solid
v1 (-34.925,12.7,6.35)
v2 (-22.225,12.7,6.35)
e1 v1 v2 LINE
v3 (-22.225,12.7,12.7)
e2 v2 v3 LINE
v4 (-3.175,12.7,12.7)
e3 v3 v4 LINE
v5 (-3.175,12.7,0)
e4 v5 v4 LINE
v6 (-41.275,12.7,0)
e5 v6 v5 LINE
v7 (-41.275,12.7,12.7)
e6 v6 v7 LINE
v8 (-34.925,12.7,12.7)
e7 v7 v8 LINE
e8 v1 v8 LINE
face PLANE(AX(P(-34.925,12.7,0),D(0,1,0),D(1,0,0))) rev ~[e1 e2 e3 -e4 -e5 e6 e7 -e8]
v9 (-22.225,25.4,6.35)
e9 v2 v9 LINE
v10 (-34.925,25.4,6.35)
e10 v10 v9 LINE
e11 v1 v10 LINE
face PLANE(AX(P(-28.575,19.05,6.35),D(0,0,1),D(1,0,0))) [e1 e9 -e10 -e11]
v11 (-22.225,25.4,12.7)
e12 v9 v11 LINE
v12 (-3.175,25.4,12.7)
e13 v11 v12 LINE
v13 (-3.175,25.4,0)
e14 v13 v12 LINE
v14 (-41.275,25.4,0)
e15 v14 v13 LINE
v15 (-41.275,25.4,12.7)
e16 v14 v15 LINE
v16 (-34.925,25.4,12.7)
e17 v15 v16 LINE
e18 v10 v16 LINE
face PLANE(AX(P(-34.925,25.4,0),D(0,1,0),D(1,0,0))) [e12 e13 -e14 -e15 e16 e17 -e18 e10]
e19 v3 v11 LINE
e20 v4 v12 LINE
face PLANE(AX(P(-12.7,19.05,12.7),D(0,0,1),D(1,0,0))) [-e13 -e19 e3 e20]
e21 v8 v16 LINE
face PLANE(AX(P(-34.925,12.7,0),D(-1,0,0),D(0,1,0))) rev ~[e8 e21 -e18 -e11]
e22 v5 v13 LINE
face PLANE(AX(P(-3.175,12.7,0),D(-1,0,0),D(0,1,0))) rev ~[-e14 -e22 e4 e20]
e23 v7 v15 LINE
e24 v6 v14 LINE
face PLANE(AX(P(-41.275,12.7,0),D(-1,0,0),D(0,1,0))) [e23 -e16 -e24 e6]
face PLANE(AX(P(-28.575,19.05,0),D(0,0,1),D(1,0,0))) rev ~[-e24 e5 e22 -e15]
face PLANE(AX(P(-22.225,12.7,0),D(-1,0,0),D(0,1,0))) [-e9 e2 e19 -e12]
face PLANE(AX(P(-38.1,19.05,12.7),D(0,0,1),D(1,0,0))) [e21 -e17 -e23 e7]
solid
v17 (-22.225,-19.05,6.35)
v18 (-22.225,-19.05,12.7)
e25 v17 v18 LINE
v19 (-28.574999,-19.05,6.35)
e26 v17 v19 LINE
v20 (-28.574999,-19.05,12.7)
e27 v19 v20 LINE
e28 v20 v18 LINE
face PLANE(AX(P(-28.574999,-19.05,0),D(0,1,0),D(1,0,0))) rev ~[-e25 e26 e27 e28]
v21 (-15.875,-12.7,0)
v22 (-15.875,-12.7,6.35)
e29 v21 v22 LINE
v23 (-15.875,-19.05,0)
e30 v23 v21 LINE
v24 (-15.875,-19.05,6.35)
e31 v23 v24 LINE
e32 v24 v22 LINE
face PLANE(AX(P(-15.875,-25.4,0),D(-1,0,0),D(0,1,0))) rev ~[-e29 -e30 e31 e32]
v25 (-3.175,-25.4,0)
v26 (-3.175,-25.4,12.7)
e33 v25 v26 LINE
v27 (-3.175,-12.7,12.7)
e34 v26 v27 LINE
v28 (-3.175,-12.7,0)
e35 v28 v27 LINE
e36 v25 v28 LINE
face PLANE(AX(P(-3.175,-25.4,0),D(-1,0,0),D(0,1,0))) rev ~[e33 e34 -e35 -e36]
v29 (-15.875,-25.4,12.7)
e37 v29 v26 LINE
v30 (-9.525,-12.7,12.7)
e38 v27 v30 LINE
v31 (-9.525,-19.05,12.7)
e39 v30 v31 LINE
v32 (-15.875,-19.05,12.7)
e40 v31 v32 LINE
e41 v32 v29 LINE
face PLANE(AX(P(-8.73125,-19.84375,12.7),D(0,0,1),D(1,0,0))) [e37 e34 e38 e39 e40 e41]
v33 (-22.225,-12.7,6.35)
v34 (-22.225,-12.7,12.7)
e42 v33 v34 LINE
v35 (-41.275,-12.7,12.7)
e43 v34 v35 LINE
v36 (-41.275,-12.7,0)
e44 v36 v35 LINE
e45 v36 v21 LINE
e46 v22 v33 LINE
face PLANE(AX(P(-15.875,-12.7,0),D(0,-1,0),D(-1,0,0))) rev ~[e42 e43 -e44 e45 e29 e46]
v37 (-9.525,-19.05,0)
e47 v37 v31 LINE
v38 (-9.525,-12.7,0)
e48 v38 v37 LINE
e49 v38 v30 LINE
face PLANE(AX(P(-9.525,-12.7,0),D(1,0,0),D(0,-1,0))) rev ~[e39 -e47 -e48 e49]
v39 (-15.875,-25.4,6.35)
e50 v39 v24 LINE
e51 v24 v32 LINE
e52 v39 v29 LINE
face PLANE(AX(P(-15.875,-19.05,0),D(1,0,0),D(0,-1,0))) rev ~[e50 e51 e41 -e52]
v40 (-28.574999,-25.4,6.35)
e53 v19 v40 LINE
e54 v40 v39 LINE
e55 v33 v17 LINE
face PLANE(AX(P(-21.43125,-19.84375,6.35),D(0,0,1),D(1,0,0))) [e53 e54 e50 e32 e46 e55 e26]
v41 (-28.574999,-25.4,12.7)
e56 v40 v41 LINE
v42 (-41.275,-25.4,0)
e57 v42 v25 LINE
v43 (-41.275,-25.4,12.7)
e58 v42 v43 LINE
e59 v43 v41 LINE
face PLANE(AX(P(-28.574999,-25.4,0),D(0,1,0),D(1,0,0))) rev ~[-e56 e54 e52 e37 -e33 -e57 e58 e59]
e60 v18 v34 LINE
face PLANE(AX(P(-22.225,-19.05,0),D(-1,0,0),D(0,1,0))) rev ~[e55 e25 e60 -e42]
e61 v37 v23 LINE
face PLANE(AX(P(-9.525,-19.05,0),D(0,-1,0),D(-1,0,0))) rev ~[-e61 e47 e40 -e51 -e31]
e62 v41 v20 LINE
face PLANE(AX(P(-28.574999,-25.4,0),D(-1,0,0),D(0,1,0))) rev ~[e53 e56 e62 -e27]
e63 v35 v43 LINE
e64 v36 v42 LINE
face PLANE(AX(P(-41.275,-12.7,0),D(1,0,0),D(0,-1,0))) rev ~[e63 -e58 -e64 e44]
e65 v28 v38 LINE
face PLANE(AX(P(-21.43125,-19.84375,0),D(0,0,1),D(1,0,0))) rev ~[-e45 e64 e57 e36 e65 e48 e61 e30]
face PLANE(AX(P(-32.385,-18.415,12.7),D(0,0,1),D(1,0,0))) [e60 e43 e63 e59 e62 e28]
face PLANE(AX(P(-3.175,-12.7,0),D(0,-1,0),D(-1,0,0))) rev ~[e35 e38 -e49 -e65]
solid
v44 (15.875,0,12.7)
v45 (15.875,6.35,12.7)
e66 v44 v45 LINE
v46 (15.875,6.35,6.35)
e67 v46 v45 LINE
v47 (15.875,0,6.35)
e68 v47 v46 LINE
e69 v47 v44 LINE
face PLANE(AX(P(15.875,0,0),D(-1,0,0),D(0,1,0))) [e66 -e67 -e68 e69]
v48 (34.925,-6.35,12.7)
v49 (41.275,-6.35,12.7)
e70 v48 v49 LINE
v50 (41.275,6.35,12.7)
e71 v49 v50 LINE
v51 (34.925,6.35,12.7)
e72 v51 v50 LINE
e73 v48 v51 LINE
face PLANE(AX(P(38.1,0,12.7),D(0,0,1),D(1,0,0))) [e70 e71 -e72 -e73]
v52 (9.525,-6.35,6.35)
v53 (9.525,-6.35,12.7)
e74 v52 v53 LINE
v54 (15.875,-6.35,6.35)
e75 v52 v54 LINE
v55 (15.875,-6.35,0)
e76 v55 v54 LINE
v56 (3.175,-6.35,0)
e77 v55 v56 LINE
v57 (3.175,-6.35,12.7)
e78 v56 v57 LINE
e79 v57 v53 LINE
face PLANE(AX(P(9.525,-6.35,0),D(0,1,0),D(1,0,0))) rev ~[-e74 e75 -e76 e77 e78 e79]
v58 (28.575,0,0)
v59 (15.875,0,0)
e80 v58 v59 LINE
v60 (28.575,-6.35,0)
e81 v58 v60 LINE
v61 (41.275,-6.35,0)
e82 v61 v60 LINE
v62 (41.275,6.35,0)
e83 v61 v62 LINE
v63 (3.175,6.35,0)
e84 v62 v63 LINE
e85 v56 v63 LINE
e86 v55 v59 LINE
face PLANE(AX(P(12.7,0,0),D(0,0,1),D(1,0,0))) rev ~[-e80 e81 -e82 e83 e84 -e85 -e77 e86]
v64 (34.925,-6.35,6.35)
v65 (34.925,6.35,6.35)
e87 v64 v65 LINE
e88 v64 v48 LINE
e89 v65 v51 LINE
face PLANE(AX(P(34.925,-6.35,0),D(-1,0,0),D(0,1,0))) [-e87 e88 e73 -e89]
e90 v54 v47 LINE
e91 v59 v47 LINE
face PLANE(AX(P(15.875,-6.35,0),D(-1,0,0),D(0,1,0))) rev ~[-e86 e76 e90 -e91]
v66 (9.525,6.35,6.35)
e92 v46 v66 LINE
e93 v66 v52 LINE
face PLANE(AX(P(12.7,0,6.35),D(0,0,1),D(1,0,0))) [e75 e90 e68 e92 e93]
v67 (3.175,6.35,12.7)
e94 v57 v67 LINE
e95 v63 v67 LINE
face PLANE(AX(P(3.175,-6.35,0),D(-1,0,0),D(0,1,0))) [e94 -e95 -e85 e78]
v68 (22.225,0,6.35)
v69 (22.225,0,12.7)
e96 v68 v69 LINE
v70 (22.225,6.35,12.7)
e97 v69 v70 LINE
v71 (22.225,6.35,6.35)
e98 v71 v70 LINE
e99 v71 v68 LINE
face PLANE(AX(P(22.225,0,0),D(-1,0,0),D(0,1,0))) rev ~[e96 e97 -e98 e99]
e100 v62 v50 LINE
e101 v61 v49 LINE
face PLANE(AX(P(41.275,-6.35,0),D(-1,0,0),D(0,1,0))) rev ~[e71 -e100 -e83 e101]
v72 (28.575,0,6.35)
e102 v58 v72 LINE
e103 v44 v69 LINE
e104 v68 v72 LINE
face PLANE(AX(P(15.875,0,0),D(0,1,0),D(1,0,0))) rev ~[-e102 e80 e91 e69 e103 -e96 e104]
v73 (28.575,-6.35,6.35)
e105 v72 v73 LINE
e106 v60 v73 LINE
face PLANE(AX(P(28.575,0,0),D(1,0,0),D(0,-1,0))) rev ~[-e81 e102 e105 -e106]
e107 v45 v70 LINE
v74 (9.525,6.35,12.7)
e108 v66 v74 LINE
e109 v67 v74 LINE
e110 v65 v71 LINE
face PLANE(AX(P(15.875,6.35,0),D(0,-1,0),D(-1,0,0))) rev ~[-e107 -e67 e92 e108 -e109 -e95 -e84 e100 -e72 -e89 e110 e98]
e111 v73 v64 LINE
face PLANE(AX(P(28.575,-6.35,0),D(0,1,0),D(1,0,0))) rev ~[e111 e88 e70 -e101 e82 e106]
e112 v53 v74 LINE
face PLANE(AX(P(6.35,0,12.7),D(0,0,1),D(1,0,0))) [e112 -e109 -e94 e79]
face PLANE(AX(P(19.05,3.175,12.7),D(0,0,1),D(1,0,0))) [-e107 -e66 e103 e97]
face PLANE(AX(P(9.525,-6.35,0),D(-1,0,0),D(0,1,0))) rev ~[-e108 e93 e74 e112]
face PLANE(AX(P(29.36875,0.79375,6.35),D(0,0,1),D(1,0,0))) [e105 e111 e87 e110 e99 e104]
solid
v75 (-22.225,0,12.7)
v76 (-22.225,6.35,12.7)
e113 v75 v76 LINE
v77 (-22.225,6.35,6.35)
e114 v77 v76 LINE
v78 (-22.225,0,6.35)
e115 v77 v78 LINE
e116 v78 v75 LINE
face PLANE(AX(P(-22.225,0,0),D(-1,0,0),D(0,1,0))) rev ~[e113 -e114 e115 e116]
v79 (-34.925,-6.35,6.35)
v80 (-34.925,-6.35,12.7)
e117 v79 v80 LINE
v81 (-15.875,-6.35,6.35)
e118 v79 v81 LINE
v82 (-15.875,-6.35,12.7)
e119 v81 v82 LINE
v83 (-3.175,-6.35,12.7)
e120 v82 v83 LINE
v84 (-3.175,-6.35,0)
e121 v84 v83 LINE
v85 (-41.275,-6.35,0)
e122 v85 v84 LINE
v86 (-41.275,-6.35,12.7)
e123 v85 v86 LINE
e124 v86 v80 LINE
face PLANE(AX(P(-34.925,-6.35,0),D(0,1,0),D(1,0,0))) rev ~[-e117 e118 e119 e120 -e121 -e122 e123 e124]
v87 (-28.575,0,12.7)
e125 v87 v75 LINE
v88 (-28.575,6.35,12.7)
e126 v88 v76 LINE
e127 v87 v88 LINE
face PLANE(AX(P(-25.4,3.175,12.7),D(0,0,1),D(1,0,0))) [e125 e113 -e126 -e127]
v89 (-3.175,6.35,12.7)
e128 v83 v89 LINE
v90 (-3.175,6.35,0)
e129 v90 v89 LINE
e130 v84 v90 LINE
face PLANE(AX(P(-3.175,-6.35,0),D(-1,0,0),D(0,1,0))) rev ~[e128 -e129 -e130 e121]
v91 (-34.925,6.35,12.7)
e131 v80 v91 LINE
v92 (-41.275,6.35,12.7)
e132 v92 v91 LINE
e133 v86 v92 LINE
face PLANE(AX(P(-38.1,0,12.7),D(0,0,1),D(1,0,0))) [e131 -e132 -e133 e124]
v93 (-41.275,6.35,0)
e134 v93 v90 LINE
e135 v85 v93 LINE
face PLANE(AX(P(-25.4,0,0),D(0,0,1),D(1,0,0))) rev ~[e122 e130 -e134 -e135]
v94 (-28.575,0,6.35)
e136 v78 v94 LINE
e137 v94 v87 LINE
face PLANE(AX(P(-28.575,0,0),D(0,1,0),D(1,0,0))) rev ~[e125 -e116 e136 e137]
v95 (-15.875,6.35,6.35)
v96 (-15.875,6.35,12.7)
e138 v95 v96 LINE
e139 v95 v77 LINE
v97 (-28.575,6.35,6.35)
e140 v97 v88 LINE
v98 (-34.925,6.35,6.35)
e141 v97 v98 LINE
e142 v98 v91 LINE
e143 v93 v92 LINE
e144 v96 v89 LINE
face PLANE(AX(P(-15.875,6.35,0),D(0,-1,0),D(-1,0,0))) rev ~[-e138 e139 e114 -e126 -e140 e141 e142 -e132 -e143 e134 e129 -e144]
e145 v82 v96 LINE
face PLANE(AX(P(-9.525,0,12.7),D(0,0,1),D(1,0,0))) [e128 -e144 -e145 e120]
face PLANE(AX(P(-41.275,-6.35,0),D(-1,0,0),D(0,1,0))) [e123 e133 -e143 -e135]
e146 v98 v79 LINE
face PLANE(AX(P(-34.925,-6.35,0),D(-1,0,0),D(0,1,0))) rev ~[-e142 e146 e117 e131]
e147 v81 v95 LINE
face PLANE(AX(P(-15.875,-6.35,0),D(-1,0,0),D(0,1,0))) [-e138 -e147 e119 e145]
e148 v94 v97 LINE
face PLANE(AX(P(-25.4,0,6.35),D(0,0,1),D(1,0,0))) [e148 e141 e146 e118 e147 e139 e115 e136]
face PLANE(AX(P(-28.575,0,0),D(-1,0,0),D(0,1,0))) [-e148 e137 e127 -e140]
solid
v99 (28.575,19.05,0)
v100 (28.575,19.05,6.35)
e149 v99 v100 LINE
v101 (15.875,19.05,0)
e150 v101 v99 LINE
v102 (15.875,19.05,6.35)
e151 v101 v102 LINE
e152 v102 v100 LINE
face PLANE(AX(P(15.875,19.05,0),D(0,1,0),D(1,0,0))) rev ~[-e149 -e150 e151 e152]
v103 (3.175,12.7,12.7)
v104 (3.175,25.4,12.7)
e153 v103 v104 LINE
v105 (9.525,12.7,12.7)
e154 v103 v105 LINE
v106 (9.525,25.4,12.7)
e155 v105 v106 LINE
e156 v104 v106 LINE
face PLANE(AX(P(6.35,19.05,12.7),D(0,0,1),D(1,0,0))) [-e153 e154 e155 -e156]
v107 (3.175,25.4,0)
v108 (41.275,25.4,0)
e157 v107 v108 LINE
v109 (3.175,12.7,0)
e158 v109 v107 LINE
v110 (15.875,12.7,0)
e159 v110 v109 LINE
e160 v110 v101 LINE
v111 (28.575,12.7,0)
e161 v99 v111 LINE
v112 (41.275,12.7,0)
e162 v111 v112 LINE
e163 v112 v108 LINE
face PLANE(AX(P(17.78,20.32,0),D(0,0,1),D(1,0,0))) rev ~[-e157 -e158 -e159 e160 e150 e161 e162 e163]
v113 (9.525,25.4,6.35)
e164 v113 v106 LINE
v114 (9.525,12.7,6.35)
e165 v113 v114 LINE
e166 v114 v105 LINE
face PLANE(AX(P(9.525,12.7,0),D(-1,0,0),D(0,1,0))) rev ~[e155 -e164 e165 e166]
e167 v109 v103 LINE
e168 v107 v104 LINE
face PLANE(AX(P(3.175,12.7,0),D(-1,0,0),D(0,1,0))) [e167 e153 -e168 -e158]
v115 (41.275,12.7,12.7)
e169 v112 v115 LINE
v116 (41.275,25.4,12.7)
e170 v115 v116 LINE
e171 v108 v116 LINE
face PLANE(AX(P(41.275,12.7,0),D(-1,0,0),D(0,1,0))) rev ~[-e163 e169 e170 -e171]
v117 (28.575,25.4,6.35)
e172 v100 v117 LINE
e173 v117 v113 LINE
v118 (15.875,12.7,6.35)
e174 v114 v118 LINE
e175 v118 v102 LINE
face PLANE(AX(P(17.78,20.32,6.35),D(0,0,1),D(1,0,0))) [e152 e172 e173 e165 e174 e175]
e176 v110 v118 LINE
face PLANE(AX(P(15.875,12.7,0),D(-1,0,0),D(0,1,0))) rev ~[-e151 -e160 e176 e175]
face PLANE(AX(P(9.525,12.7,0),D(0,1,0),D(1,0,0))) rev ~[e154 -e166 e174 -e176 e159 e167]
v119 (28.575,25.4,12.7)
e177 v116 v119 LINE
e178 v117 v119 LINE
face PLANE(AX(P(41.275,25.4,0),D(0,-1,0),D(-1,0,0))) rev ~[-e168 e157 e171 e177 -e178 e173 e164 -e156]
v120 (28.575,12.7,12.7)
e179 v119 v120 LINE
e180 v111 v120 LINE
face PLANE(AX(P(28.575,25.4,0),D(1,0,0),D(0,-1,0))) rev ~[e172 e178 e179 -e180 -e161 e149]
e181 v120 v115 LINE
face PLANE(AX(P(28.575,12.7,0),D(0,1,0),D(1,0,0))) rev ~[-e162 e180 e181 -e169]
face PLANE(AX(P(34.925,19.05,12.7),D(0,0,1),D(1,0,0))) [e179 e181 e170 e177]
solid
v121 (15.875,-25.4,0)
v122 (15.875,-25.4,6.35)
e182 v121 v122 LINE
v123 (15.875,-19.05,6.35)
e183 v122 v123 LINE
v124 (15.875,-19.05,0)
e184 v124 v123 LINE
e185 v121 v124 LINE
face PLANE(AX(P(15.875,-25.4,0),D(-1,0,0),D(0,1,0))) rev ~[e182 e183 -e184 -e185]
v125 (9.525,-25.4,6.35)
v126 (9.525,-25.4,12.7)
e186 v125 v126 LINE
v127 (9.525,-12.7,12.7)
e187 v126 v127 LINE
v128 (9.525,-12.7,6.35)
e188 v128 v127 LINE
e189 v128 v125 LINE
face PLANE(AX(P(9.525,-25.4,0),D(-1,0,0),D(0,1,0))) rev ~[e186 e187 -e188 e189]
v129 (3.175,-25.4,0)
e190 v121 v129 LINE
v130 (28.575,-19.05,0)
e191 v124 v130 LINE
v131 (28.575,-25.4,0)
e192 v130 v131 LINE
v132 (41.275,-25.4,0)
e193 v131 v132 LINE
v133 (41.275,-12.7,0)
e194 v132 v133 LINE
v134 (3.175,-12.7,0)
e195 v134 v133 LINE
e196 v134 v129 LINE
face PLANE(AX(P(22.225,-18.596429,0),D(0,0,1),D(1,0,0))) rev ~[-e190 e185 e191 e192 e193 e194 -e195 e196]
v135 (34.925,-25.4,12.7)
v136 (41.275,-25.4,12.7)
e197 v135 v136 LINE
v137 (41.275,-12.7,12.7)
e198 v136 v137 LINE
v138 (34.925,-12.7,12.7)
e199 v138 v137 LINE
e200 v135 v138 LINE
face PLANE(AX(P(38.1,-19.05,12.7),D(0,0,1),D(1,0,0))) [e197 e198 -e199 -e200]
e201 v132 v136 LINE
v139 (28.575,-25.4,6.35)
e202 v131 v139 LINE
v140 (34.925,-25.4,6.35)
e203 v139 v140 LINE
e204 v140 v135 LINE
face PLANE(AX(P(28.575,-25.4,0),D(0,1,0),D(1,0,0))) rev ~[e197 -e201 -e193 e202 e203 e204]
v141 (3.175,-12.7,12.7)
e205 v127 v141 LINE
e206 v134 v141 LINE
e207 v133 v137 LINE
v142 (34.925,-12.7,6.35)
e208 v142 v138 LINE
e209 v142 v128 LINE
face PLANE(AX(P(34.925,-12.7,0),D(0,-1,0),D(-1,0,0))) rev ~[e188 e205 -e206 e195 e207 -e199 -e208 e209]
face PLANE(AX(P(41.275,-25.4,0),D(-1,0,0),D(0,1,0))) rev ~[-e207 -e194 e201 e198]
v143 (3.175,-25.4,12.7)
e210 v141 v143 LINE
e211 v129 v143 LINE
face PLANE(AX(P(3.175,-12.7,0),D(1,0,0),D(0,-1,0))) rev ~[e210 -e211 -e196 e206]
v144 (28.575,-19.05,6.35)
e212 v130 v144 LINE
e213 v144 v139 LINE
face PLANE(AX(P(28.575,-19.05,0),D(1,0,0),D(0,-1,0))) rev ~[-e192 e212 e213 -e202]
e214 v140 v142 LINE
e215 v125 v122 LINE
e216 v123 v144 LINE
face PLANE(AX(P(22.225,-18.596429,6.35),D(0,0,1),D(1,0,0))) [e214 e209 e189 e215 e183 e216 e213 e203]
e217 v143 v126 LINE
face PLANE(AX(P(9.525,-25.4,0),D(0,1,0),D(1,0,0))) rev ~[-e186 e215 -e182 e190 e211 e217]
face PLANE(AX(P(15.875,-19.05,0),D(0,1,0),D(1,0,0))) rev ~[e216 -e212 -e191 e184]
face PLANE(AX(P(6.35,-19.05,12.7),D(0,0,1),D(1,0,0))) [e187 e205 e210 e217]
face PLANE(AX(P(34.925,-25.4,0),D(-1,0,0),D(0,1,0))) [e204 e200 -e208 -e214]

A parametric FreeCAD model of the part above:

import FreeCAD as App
import Part
import Sketcher
from FreeCAD import Vector
Q = App.Units.Quantity

doc = App.newDocument("Part")
body = doc.addObject("PartDesign::Body", "Body")

# Sketch on XY plane
sketch1 = body.newObject("Sketcher::SketchObject", "Sketch")
sketch1.AttachmentSupport = (doc.getObject("XY_Plane"), [""])
sketch1.MapMode = "FlatFace"
sketch1.addGeometry(Part.LineSegment(Vector(-41, 25, 0), Vector(-41, 13, 0)), False)
sketch1.addGeometry(Part.LineSegment(Vector(-41, 13, 0), Vector(-35, 13, 0)), False)
sketch1.addGeometry(Part.LineSegment(Vector(-35, 13, 0), Vector(-35, 25, 0)), False)
sketch1.addGeometry(Part.LineSegment(Vector(-35, 25, 0), Vector(-41, 25, 0)), False)
sketch1.addConstraint(Sketcher.Constraint("Coincident", 0, 2, 1, 1))
sketch1.addConstraint(Sketcher.Constraint("Coincident", 1, 2, 2, 1))
sketch1.addConstraint(Sketcher.Constraint("Coincident", 2, 2, 3, 1))
sketch1.addConstraint(Sketcher.Constraint("Coincident", 3, 2, 0, 1))
sketch1.addConstraint(Sketcher.Constraint("Vertical", 0))
sketch1.addConstraint(Sketcher.Constraint("Horizontal", 1))
sketch1.addConstraint(Sketcher.Constraint("Vertical", 2))
sketch1.addConstraint(Sketcher.Constraint("Horizontal", 3))
sketch1.addConstraint(Sketcher.Constraint("DistanceY", 0, 2, 0, 1, Q("0.5 in")))
sketch1.addConstraint(Sketcher.Constraint("DistanceY", -1, 1, 2, 2, Q("1 in")))
sketch1.addConstraint(Sketcher.Constraint("DistanceX", 1, 1, 1, 2, Q("0.25 in")))
sketch1.addConstraint(Sketcher.Constraint("DistanceX", 0, 2, -1, 1, Q("1.625 in")))
pad1 = body.newObject("PartDesign::Pad", "Pad")
pad1.Profile = sketch1
pad1.Length = Q("0.5 in")
body2 = doc.addObject("PartDesign::Body", "Body001")

# Sketch on XY plane
sketch2 = body2.newObject("Sketcher::SketchObject", "Sketch001")
sketch2.AttachmentSupport = (doc.getObject("XY_Plane001"), [""])
sketch2.MapMode = "FlatFace"
sketch2.addGeometry(Part.LineSegment(Vector(-22, 25, 0), Vector(-22, 13, 0)), False)
sketch2.addGeometry(Part.LineSegment(Vector(-22, 13, 0), Vector(-3, 13, 0)), False)
sketch2.addGeometry(Part.LineSegment(Vector(-3, 13, 0), Vector(-3, 25, 0)), False)
sketch2.addGeometry(Part.LineSegment(Vector(-3, 25, 0), Vector(-22, 25, 0)), False)
sketch2.addConstraint(Sketcher.Constraint("Coincident", 0, 2, 1, 1))
sketch2.addConstraint(Sketcher.Constraint("Coincident", 1, 2, 2, 1))
sketch2.addConstraint(Sketcher.Constraint("Coincident", 2, 2, 3, 1))
sketch2.addConstraint(Sketcher.Constraint("Coincident", 3, 2, 0, 1))
sketch2.addConstraint(Sketcher.Constraint("Vertical", 0))
sketch2.addConstraint(Sketcher.Constraint("Horizontal", 1))
sketch2.addConstraint(Sketcher.Constraint("Vertical", 2))
sketch2.addConstraint(Sketcher.Constraint("Horizontal", 3))
sketch2.addConstraint(Sketcher.Constraint("DistanceY", 0, 2, 0, 1, Q("0.5 in")))
sketch2.addConstraint(Sketcher.Constraint("DistanceY", -1, 1, 2, 2, Q("1 in")))
sketch2.addConstraint(Sketcher.Constraint("DistanceX", 1, 1, 1, 2, Q("0.75 in")))
sketch2.addConstraint(Sketcher.Constraint("DistanceX", 0, 2, -1, 1, Q("0.875 in")))
pad2 = body2.newObject("PartDesign::Pad", "Pad001")
pad2.Profile = sketch2
pad2.Length = Q("0.5 in")
body3 = doc.addObject("PartDesign::Body", "Body002")

# Sketch on XY plane
sketch3 = body3.newObject("Sketcher::SketchObject", "Sketch002")
sketch3.AttachmentSupport = (doc.getObject("XY_Plane002"), [""])
sketch3.MapMode = "FlatFace"
sketch3.addGeometry(Part.LineSegment(Vector(-41, 6, 0), Vector(-41, -6, 0)), False)
sketch3.addGeometry(Part.LineSegment(Vector(-41, -6, 0), Vector(-35, -6, 0)), False)
sketch3.addGeometry(Part.LineSegment(Vector(-35, -6, 0), Vector(-35, 6, 0)), False)
sketch3.addGeometry(Part.LineSegment(Vector(-35, 6, 0), Vector(-41, 6, 0)), False)
sketch3.addConstraint(Sketcher.Constraint("Coincident", 0, 2, 1, 1))
sketch3.addConstraint(Sketcher.Constraint("Coincident", 1, 2, 2, 1))
sketch3.addConstraint(Sketcher.Constraint("Coincident", 2, 2, 3, 1))
sketch3.addConstraint(Sketcher.Constraint("Coincident", 3, 2, 0, 1))
sketch3.addConstraint(Sketcher.Constraint("Vertical", 0))
sketch3.addConstraint(Sketcher.Constraint("Horizontal", 1))
sketch3.addConstraint(Sketcher.Constraint("Vertical", 2))
sketch3.addConstraint(Sketcher.Constraint("Horizontal", 3))
sketch3.addConstraint(Sketcher.Constraint("DistanceY", 0, 2, 0, 1, Q("0.5 in")))
sketch3.addConstraint(Sketcher.Constraint("DistanceX", 1, 1, 1, 2, Q("0.25 in")))
sketch3.addConstraint(Sketcher.Constraint("DistanceY", 0, 2, -1, 1, Q("0.25 in")))
sketch3.addConstraint(Sketcher.Constraint("DistanceX", 0, 2, -1, 1, Q("1.625 in")))
pad3 = body3.newObject("PartDesign::Pad", "Pad002")
pad3.Profile = sketch3
pad3.Length = Q("0.5 in")
body4 = doc.addObject("PartDesign::Body", "Body003")

# Sketch on XY plane
sketch4 = body4.newObject("Sketcher::SketchObject", "Sketch003")
sketch4.AttachmentSupport = (doc.getObject("XY_Plane003"), [""])
sketch4.MapMode = "FlatFace"
sketch4.addGeometry(Part.LineSegment(Vector(-16, 6, 0), Vector(-16, -6, 0)), False)
sketch4.addGeometry(Part.LineSegment(Vector(-16, -6, 0), Vector(-3, -6, 0)), False)
sketch4.addGeometry(Part.LineSegment(Vector(-3, -6, 0), Vector(-3, 6, 0)), False)
sketch4.addGeometry(Part.LineSegment(Vector(-3, 6, 0), Vector(-16, 6, 0)), False)
sketch4.addConstraint(Sketcher.Constraint("Coincident", 0, 2, 1, 1))
sketch4.addConstraint(Sketcher.Constraint("Coincident", 1, 2, 2, 1))
sketch4.addConstraint(Sketcher.Constraint("Coincident", 2, 2, 3, 1))
sketch4.addConstraint(Sketcher.Constraint("Coincident", 3, 2, 0, 1))
sketch4.addConstraint(Sketcher.Constraint("Vertical", 0))
sketch4.addConstraint(Sketcher.Constraint("Horizontal", 1))
sketch4.addConstraint(Sketcher.Constraint("Vertical", 2))
sketch4.addConstraint(Sketcher.Constraint("Horizontal", 3))
sketch4.addConstraint(Sketcher.Constraint("Equal", 3, 0))
sketch4.addConstraint(Sketcher.Constraint("DistanceX", 1, 1, 1, 2, Q("0.5 in")))
sketch4.addConstraint(Sketcher.Constraint("DistanceY", 0, 2, -1, 1, Q("0.25 in")))
sketch4.addConstraint(Sketcher.Constraint("DistanceX", 0, 2, -1, 1, Q("0.625 in")))
pad4 = body4.newObject("PartDesign::Pad", "Pad003")
pad4.Profile = sketch4
pad4.Length = Q("0.5 in")
body5 = doc.addObject("PartDesign::Body", "Body004")

# Sketch on XY plane
sketch5 = body5.newObject("Sketcher::SketchObject", "Sketch004")
sketch5.AttachmentSupport = (doc.getObject("XY_Plane004"), [""])
sketch5.MapMode = "FlatFace"
sketch5.addGeometry(Part.LineSegment(Vector(-29, 6, 0), Vector(-29, 0, 0)), False)
sketch5.addGeometry(Part.LineSegment(Vector(-29, 0, 0), Vector(-22, 0, 0)), False)
sketch5.addGeometry(Part.LineSegment(Vector(-22, 0, 0), Vector(-22, 6, 0)), False)
sketch5.addGeometry(Part.LineSegment(Vector(-22, 6, 0), Vector(-29, 6, 0)), False)
sketch5.addConstraint(Sketcher.Constraint("Coincident", 0, 2, 1, 1))
sketch5.addConstraint(Sketcher.Constraint("Coincident", 1, 2, 2, 1))
sketch5.addConstraint(Sketcher.Constraint("Coincident", 2, 2, 3, 1))
sketch5.addConstraint(Sketcher.Constraint("Coincident", 3, 2, 0, 1))
sketch5.addConstraint(Sketcher.Constraint("Vertical", 0))
sketch5.addConstraint(Sketcher.Constraint("Horizontal", 1))
sketch5.addConstraint(Sketcher.Constraint("Vertical", 2))
sketch5.addConstraint(Sketcher.Constraint("Horizontal", 3))
sketch5.addConstraint(Sketcher.Constraint("PointOnObject", 0, 2, -1))
sketch5.addConstraint(Sketcher.Constraint("Equal", 3, 0))
sketch5.addConstraint(Sketcher.Constraint("DistanceX", 1, 1, 1, 2, Q("0.25 in")))
sketch5.addConstraint(Sketcher.Constraint("DistanceX", 0, 2, -1, 1, Q("1.125 in")))
pad5 = body5.newObject("PartDesign::Pad", "Pad004")
pad5.Profile = sketch5
pad5.Length = Q("0.5 in")
body6 = doc.addObject("PartDesign::Body", "Body005")

# Sketch on XY plane
sketch6 = body6.newObject("Sketcher::SketchObject", "Sketch005")
sketch6.AttachmentSupport = (doc.getObject("XY_Plane005"), [""])
sketch6.MapMode = "FlatFace"
sketch6.addGeometry(Part.LineSegment(Vector(-41, -13, 0), Vector(-41, -25, 0)), False)
sketch6.addGeometry(Part.LineSegment(Vector(-41, -25, 0), Vector(-29, -25, 0)), False)
sketch6.addGeometry(Part.LineSegment(Vector(-29, -25, 0), Vector(-29, -19, 0)), False)
sketch6.addGeometry(Part.LineSegment(Vector(-29, -19, 0), Vector(-22, -19, 0)), False)
sketch6.addGeometry(Part.LineSegment(Vector(-22, -19, 0), Vector(-22, -13, 0)), False)
sketch6.addGeometry(Part.LineSegment(Vector(-22, -13, 0), Vector(-41, -13, 0)), False)
sketch6.addConstraint(Sketcher.Constraint("Coincident", 0, 2, 1, 1))
sketch6.addConstraint(Sketcher.Constraint("Coincident", 1, 2, 2, 1))
sketch6.addConstraint(Sketcher.Constraint("Coincident", 2, 2, 3, 1))
sketch6.addConstraint(Sketcher.Constraint("Coincident", 3, 2, 4, 1))
sketch6.addConstraint(Sketcher.Constraint("Coincident", 4, 2, 5, 1))
sketch6.addConstraint(Sketcher.Constraint("Coincident", 5, 2, 0, 1))
sketch6.addConstraint(Sketcher.Constraint("Vertical", 0))
sketch6.addConstraint(Sketcher.Constraint("Horizontal", 1))
sketch6.addConstraint(Sketcher.Constraint("Vertical", 2))
sketch6.addConstraint(Sketcher.Constraint("Horizontal", 3))
sketch6.addConstraint(Sketcher.Constraint("Vertical", 4))
sketch6.addConstraint(Sketcher.Constraint("Horizontal", 5))
sketch6.addConstraint(Sketcher.Constraint("Equal", 1, 0))
sketch6.addConstraint(Sketcher.Constraint("Equal", 3, 2))
sketch6.addConstraint(Sketcher.Constraint("Equal", 2, 4))
sketch6.addConstraint(Sketcher.Constraint("DistanceX", 1, 1, 1, 2, Q("0.5 in")))
sketch6.addConstraint(Sketcher.Constraint("DistanceY", 0, 2, -1, 1, Q("1 in")))
sketch6.addConstraint(Sketcher.Constraint("DistanceX", 0, 2, -1, 1, Q("1.625 in")))
pad6 = body6.newObject("PartDesign::Pad", "Pad005")
pad6.Profile = sketch6
pad6.Length = Q("0.5 in")
body7 = doc.addObject("PartDesign::Body", "Body006")

# Sketch on XY plane
sketch7 = body7.newObject("Sketcher::SketchObject", "Sketch006")
sketch7.AttachmentSupport = (doc.getObject("XY_Plane006"), [""])
sketch7.MapMode = "FlatFace"
sketch7.addGeometry(Part.LineSegment(Vector(-16, -19, 0), Vector(-16, -25, 0)), False)
sketch7.addGeometry(Part.LineSegment(Vector(-16, -25, 0), Vector(-3, -25, 0)), False)
sketch7.addGeometry(Part.LineSegment(Vector(-3, -25, 0), Vector(-3, -13, 0)), False)
sketch7.addGeometry(Part.LineSegment(Vector(-3, -13, 0), Vector(-10, -13, 0)), False)
sketch7.addGeometry(Part.LineSegment(Vector(-10, -13, 0), Vector(-10, -19, 0)), False)
sketch7.addGeometry(Part.LineSegment(Vector(-10, -19, 0), Vector(-16, -19, 0)), False)
sketch7.addConstraint(Sketcher.Constraint("Coincident", 0, 2, 1, 1))
sketch7.addConstraint(Sketcher.Constraint("Coincident", 1, 2, 2, 1))
sketch7.addConstraint(Sketcher.Constraint("Coincident", 2, 2, 3, 1))
sketch7.addConstraint(Sketcher.Constraint("Coincident", 3, 2, 4, 1))
sketch7.addConstraint(Sketcher.Constraint("Coincident", 4, 2, 5, 1))
sketch7.addConstraint(Sketcher.Constraint("Coincident", 5, 2, 0, 1))
sketch7.addConstraint(Sketcher.Constraint("Vertical", 0))
sketch7.addConstraint(Sketcher.Constraint("Horizontal", 1))
sketch7.addConstraint(Sketcher.Constraint("Vertical", 2))
sketch7.addConstraint(Sketcher.Constraint("Horizontal", 3))
sketch7.addConstraint(Sketcher.Constraint("Vertical", 4))
sketch7.addConstraint(Sketcher.Constraint("Horizontal", 5))
sketch7.addConstraint(Sketcher.Constraint("Equal", 3, 5))
sketch7.addConstraint(Sketcher.Constraint("Equal", 5, 0))
sketch7.addConstraint(Sketcher.Constraint("Equal", 1, 2))
sketch7.addConstraint(Sketcher.Constraint("DistanceX", 1, 1, 1, 2, Q("0.5 in")))
sketch7.addConstraint(Sketcher.Constraint("DistanceY", 0, 2, -1, 1, Q("1 in")))
sketch7.addConstraint(Sketcher.Constraint("DistanceX", 0, 2, -1, 1, Q("0.625 in")))
pad7 = body7.newObject("PartDesign::Pad", "Pad006")
pad7.Profile = sketch7
pad7.Length = Q("0.5 in")
body8 = doc.addObject("PartDesign::Body", "Body007")

# Sketch on XY plane
sketch8 = body8.newObject("Sketcher::SketchObject", "Sketch007")
sketch8.AttachmentSupport = (doc.getObject("XY_Plane007"), [""])
sketch8.MapMode = "FlatFace"
sketch8.addGeometry(Part.LineSegment(Vector(29, 13, 0), Vector(41, 13, 0)), False)
sketch8.addGeometry(Part.LineSegment(Vector(41, 13, 0), Vector(41, 25, 0)), False)
sketch8.addGeometry(Part.LineSegment(Vector(41, 25, 0), Vector(29, 25, 0)), False)
sketch8.addGeometry(Part.LineSegment(Vector(29, 25, 0), Vector(29, 13, 0)), False)
sketch8.addConstraint(Sketcher.Constraint("Coincident", 0, 2, 1, 1))
sketch8.addConstraint(Sketcher.Constraint("Coincident", 1, 2, 2, 1))
sketch8.addConstraint(Sketcher.Constraint("Coincident", 2, 2, 3, 1))
sketch8.addConstraint(Sketcher.Constraint("Coincident", 3, 2, 0, 1))
sketch8.addConstraint(Sketcher.Constraint("Horizontal", 0))
sketch8.addConstraint(Sketcher.Constraint("Vertical", 1))
sketch8.addConstraint(Sketcher.Constraint("Horizontal", 2))
sketch8.addConstraint(Sketcher.Constraint("Vertical", 3))
sketch8.addConstraint(Sketcher.Constraint("Equal", 2, 1))
sketch8.addConstraint(Sketcher.Constraint("DistanceX", 0, 1, 0, 2, Q("0.5 in")))
sketch8.addConstraint(Sketcher.Constraint("DistanceY", -1, 1, 1, 2, Q("1 in")))
sketch8.addConstraint(Sketcher.Constraint("DistanceX", -1, 1, 0, 2, Q("1.625 in")))
pad8 = body8.newObject("PartDesign::Pad", "Pad007")
pad8.Profile = sketch8
pad8.Length = Q("0.5 in")
body9 = doc.addObject("PartDesign::Body", "Body008")

# Sketch on XY plane
sketch9 = body9.newObject("Sketcher::SketchObject", "Sketch008")
sketch9.AttachmentSupport = (doc.getObject("XY_Plane008"), [""])
sketch9.MapMode = "FlatFace"
sketch9.addGeometry(Part.LineSegment(Vector(3, 25, 0), Vector(3, 13, 0)), False)
sketch9.addGeometry(Part.LineSegment(Vector(3, 13, 0), Vector(10, 13, 0)), False)
sketch9.addGeometry(Part.LineSegment(Vector(10, 13, 0), Vector(10, 25, 0)), False)
sketch9.addGeometry(Part.LineSegment(Vector(10, 25, 0), Vector(3, 25, 0)), False)
sketch9.addConstraint(Sketcher.Constraint("Coincident", 0, 2, 1, 1))
sketch9.addConstraint(Sketcher.Constraint("Coincident", 1, 2, 2, 1))
sketch9.addConstraint(Sketcher.Constraint("Coincident", 2, 2, 3, 1))
sketch9.addConstraint(Sketcher.Constraint("Coincident", 3, 2, 0, 1))
sketch9.addConstraint(Sketcher.Constraint("Vertical", 0))
sketch9.addConstraint(Sketcher.Constraint("Horizontal", 1))
sketch9.addConstraint(Sketcher.Constraint("Vertical", 2))
sketch9.addConstraint(Sketcher.Constraint("Horizontal", 3))
sketch9.addConstraint(Sketcher.Constraint("DistanceY", 0, 2, 0, 1, Q("0.5 in")))
sketch9.addConstraint(Sketcher.Constraint("DistanceY", -1, 1, 2, 2, Q("1 in")))
sketch9.addConstraint(Sketcher.Constraint("DistanceX", 1, 1, 1, 2, Q("0.25 in")))
sketch9.addConstraint(Sketcher.Constraint("DistanceX", -1, 1, 0, 2, Q("0.125 in")))
pad9 = body9.newObject("PartDesign::Pad", "Pad008")
pad9.Profile = sketch9
pad9.Length = Q("0.5 in")
body10 = doc.addObject("PartDesign::Body", "Body009")

# Sketch on XY plane
sketch10 = body10.newObject("Sketcher::SketchObject", "Sketch009")
sketch10.AttachmentSupport = (doc.getObject("XY_Plane009"), [""])
sketch10.MapMode = "FlatFace"
sketch10.addGeometry(Part.LineSegment(Vector(3, 6, 0), Vector(3, -6, 0)), False)
sketch10.addGeometry(Part.LineSegment(Vector(3, -6, 0), Vector(10, -6, 0)), False)
sketch10.addGeometry(Part.LineSegment(Vector(10, -6, 0), Vector(10, 6, 0)), False)
sketch10.addGeometry(Part.LineSegment(Vector(10, 6, 0), Vector(3, 6, 0)), False)
sketch10.addConstraint(Sketcher.Constraint("Coincident", 0, 2, 1, 1))
sketch10.addConstraint(Sketcher.Constraint("Coincident", 1, 2, 2, 1))
sketch10.addConstraint(Sketcher.Constraint("Coincident", 2, 2, 3, 1))
sketch10.addConstraint(Sketcher.Constraint("Coincident", 3, 2, 0, 1))
sketch10.addConstraint(Sketcher.Constraint("Vertical", 0))
sketch10.addConstraint(Sketcher.Constraint("Horizontal", 1))
sketch10.addConstraint(Sketcher.Constraint("Vertical", 2))
sketch10.addConstraint(Sketcher.Constraint("Horizontal", 3))
sketch10.addConstraint(Sketcher.Constraint("DistanceY", 0, 2, 0, 1, Q("0.5 in")))
sketch10.addConstraint(Sketcher.Constraint("DistanceX", 1, 1, 1, 2, Q("0.25 in")))
sketch10.addConstraint(Sketcher.Constraint("DistanceY", 0, 2, -1, 1, Q("0.25 in")))
sketch10.addConstraint(Sketcher.Constraint("DistanceX", -1, 1, 0, 2, Q("0.125 in")))
pad10 = body10.newObject("PartDesign::Pad", "Pad009")
pad10.Profile = sketch10
pad10.Length = Q("0.5 in")
body11 = doc.addObject("PartDesign::Body", "Body010")

# Sketch on XY plane
sketch11 = body11.newObject("Sketcher::SketchObject", "Sketch010")
sketch11.AttachmentSupport = (doc.getObject("XY_Plane010"), [""])
sketch11.MapMode = "FlatFace"
sketch11.addGeometry(Part.LineSegment(Vector(16, 6, 0), Vector(16, 0, 0)), False)
sketch11.addGeometry(Part.LineSegment(Vector(16, 0, 0), Vector(22, 0, 0)), False)
sketch11.addGeometry(Part.LineSegment(Vector(22, 0, 0), Vector(22, 6, 0)), False)
sketch11.addGeometry(Part.LineSegment(Vector(22, 6, 0), Vector(16, 6, 0)), False)
sketch11.addConstraint(Sketcher.Constraint("Coincident", 0, 2, 1, 1))
sketch11.addConstraint(Sketcher.Constraint("Coincident", 1, 2, 2, 1))
sketch11.addConstraint(Sketcher.Constraint("Coincident", 2, 2, 3, 1))
sketch11.addConstraint(Sketcher.Constraint("Coincident", 3, 2, 0, 1))
sketch11.addConstraint(Sketcher.Constraint("Vertical", 0))
sketch11.addConstraint(Sketcher.Constraint("Horizontal", 1))
sketch11.addConstraint(Sketcher.Constraint("Vertical", 2))
sketch11.addConstraint(Sketcher.Constraint("Horizontal", 3))
sketch11.addConstraint(Sketcher.Constraint("PointOnObject", 0, 2, -1))
sketch11.addConstraint(Sketcher.Constraint("Equal", 3, 0))
sketch11.addConstraint(Sketcher.Constraint("DistanceX", 1, 1, 1, 2, Q("0.25 in")))
sketch11.addConstraint(Sketcher.Constraint("DistanceX", -1, 1, 0, 2, Q("0.625 in")))
pad11 = body11.newObject("PartDesign::Pad", "Pad010")
pad11.Profile = sketch11
pad11.Length = Q("0.5 in")
body12 = doc.addObject("PartDesign::Body", "Body011")

# Sketch on XY plane
sketch12 = body12.newObject("Sketcher::SketchObject", "Sketch011")
sketch12.AttachmentSupport = (doc.getObject("XY_Plane011"), [""])
sketch12.MapMode = "FlatFace"
sketch12.addGeometry(Part.LineSegment(Vector(35, 6, 0), Vector(35, -6, 0)), False)
sketch12.addGeometry(Part.LineSegment(Vector(35, -6, 0), Vector(41, -6, 0)), False)
sketch12.addGeometry(Part.LineSegment(Vector(41, -6, 0), Vector(41, 6, 0)), False)
sketch12.addGeometry(Part.LineSegment(Vector(41, 6, 0), Vector(35, 6, 0)), False)
sketch12.addConstraint(Sketcher.Constraint("Coincident", 0, 2, 1, 1))
sketch12.addConstraint(Sketcher.Constraint("Coincident", 1, 2, 2, 1))
sketch12.addConstraint(Sketcher.Constraint("Coincident", 2, 2, 3, 1))
sketch12.addConstraint(Sketcher.Constraint("Coincident", 3, 2, 0, 1))
sketch12.addConstraint(Sketcher.Constraint("Vertical", 0))
sketch12.addConstraint(Sketcher.Constraint("Horizontal", 1))
sketch12.addConstraint(Sketcher.Constraint("Vertical", 2))
sketch12.addConstraint(Sketcher.Constraint("Horizontal", 3))
sketch12.addConstraint(Sketcher.Constraint("DistanceY", 0, 2, 0, 1, Q("0.5 in")))
sketch12.addConstraint(Sketcher.Constraint("DistanceX", 1, 1, 1, 2, Q("0.25 in")))
sketch12.addConstraint(Sketcher.Constraint("DistanceY", 0, 2, -1, 1, Q("0.25 in")))
sketch12.addConstraint(Sketcher.Constraint("DistanceX", -1, 1, 0, 2, Q("1.375 in")))
pad12 = body12.newObject("PartDesign::Pad", "Pad011")
pad12.Profile = sketch12
pad12.Length = Q("0.5 in")
body13 = doc.addObject("PartDesign::Body", "Body012")

# Sketch on XY plane
sketch13 = body13.newObject("Sketcher::SketchObject", "Sketch012")
sketch13.AttachmentSupport = (doc.getObject("XY_Plane012"), [""])
sketch13.MapMode = "FlatFace"
sketch13.addGeometry(Part.LineSegment(Vector(35, -13, 0), Vector(35, -25, 0)), False)
sketch13.addGeometry(Part.LineSegment(Vector(35, -25, 0), Vector(41, -25, 0)), False)
sketch13.addGeometry(Part.LineSegment(Vector(41, -25, 0), Vector(41, -13, 0)), False)
sketch13.addGeometry(Part.LineSegment(Vector(41, -13, 0), Vector(35, -13, 0)), False)
sketch13.addConstraint(Sketcher.Constraint("Coincident", 0, 2, 1, 1))
sketch13.addConstraint(Sketcher.Constraint("Coincident", 1, 2, 2, 1))
sketch13.addConstraint(Sketcher.Constraint("Coincident", 2, 2, 3, 1))
sketch13.addConstraint(Sketcher.Constraint("Coincident", 3, 2, 0, 1))
sketch13.addConstraint(Sketcher.Constraint("Vertical", 0))
sketch13.addConstraint(Sketcher.Constraint("Horizontal", 1))
sketch13.addConstraint(Sketcher.Constraint("Vertical", 2))
sketch13.addConstraint(Sketcher.Constraint("Horizontal", 3))
sketch13.addConstraint(Sketcher.Constraint("DistanceY", 0, 2, 0, 1, Q("0.5 in")))
sketch13.addConstraint(Sketcher.Constraint("DistanceY", 0, 2, -1, 1, Q("1 in")))
sketch13.addConstraint(Sketcher.Constraint("DistanceX", 1, 1, 1, 2, Q("0.25 in")))
sketch13.addConstraint(Sketcher.Constraint("DistanceX", -1, 1, 0, 2, Q("1.375 in")))
pad13 = body13.newObject("PartDesign::Pad", "Pad012")
pad13.Profile = sketch13
pad13.Length = Q("0.5 in")
body14 = doc.addObject("PartDesign::Body", "Body013")

# Sketch on XY plane
sketch14 = body14.newObject("Sketcher::SketchObject", "Sketch013")
sketch14.AttachmentSupport = (doc.getObject("XY_Plane013"), [""])
sketch14.MapMode = "FlatFace"
sketch14.addGeometry(Part.LineSegment(Vector(10, -13, 0), Vector(3, -13, 0)), False)
sketch14.addGeometry(Part.LineSegment(Vector(3, -13, 0), Vector(3, -25, 0)), False)
sketch14.addGeometry(Part.LineSegment(Vector(3, -25, 0), Vector(10, -25, 0)), False)
sketch14.addGeometry(Part.LineSegment(Vector(10, -25, 0), Vector(10, -13, 0)), False)
sketch14.addConstraint(Sketcher.Constraint("Coincident", 0, 2, 1, 1))
sketch14.addConstraint(Sketcher.Constraint("Coincident", 1, 2, 2, 1))
sketch14.addConstraint(Sketcher.Constraint("Coincident", 2, 2, 3, 1))
sketch14.addConstraint(Sketcher.Constraint("Coincident", 3, 2, 0, 1))
sketch14.addConstraint(Sketcher.Constraint("Horizontal", 0))
sketch14.addConstraint(Sketcher.Constraint("Vertical", 1))
sketch14.addConstraint(Sketcher.Constraint("Horizontal", 2))
sketch14.addConstraint(Sketcher.Constraint("Vertical", 3))
sketch14.addConstraint(Sketcher.Constraint("DistanceY", 1, 2, 1, 1, Q("0.5 in")))
sketch14.addConstraint(Sketcher.Constraint("DistanceY", 1, 2, -1, 1, Q("1 in")))
sketch14.addConstraint(Sketcher.Constraint("DistanceX", 0, 2, 0, 1, Q("0.25 in")))
sketch14.addConstraint(Sketcher.Constraint("DistanceX", -1, 1, 0, 2, Q("0.125 in")))
pad14 = body14.newObject("PartDesign::Pad", "Pad013")
pad14.Profile = sketch14
pad14.Length = Q("0.5 in")
body13.AllowCompound = True
doc.recompute()

boolean = body13.newObject("PartDesign::Boolean", "Boolean")
boolean.Type = "Fuse"
boolean.addObjects([body14])

# Sketch on XY plane
sketch15 = body13.newObject("Sketcher::SketchObject", "Sketch014")
sketch15.AttachmentSupport = (doc.getObject("XY_Plane012"), [""])
sketch15.MapMode = "FlatFace"
sketch15.addGeometry(Part.LineSegment(Vector(29, -25, 0), Vector(35, -25, 0)), False)
sketch15.addGeometry(Part.LineSegment(Vector(35, -25, 0), Vector(35, -13, 0)), False)
sketch15.addGeometry(Part.LineSegment(Vector(35, -13, 0), Vector(10, -13, 0)), False)
sketch15.addGeometry(Part.LineSegment(Vector(10, -13, 0), Vector(10, -25, 0)), False)
sketch15.addGeometry(Part.LineSegment(Vector(10, -25, 0), Vector(16, -25, 0)), False)
sketch15.addGeometry(Part.LineSegment(Vector(16, -25, 0), Vector(16, -19, 0)), False)
sketch15.addGeometry(Part.LineSegment(Vector(16, -19, 0), Vector(29, -19, 0)), False)
sketch15.addGeometry(Part.LineSegment(Vector(29, -19, 0), Vector(29, -25, 0)), False)
sketch15.addConstraint(Sketcher.Constraint("Coincident", 0, 2, 1, 1))
sketch15.addConstraint(Sketcher.Constraint("Coincident", 1, 2, 2, 1))
sketch15.addConstraint(Sketcher.Constraint("Coincident", 2, 2, 3, 1))
sketch15.addConstraint(Sketcher.Constraint("Coincident", 3, 2, 4, 1))
sketch15.addConstraint(Sketcher.Constraint("Coincident", 4, 2, 5, 1))
sketch15.addConstraint(Sketcher.Constraint("Coincident", 5, 2, 6, 1))
sketch15.addConstraint(Sketcher.Constraint("Coincident", 6, 2, 7, 1))
sketch15.addConstraint(Sketcher.Constraint("Coincident", 7, 2, 0, 1))
sketch15.addConstraint(Sketcher.Constraint("Horizontal", 0))
sketch15.addConstraint(Sketcher.Constraint("Vertical", 1))
sketch15.addConstraint(Sketcher.Constraint("Horizontal", 2))
sketch15.addConstraint(Sketcher.Constraint("Vertical", 3))
sketch15.addConstraint(Sketcher.Constraint("Horizontal", 4))
sketch15.addConstraint(Sketcher.Constraint("Vertical", 5))
sketch15.addConstraint(Sketcher.Constraint("Horizontal", 6))
sketch15.addConstraint(Sketcher.Constraint("Vertical", 7))
sketch15.addConstraint(Sketcher.Constraint("Horizontal", 0, 2, 3, 2))
sketch15.addConstraint(Sketcher.Constraint("Equal", 0, 4))
sketch15.addConstraint(Sketcher.Constraint("Equal", 6, 1))
sketch15.addConstraint(Sketcher.Constraint("Equal", 4, 5))
sketch15.addConstraint(Sketcher.Constraint("DistanceX", 2, 2, 2, 1, Q("1 in")))
sketch15.addConstraint(Sketcher.Constraint("DistanceX", 6, 1, 6, 2, Q("0.5 in")))
sketch15.addConstraint(Sketcher.Constraint("DistanceY", 0, 2, -1, 1, Q("1 in")))
sketch15.addConstraint(Sketcher.Constraint("DistanceX", -1, 1, 0, 2, Q("1.375 in")))
pad15 = body13.newObject("PartDesign::Pad", "Pad014")
pad15.Profile = sketch15
pad15.Length = Q("0.25 in")
body6.AllowCompound = True
doc.recompute()

boolean2 = body6.newObject("PartDesign::Boolean", "Boolean001")
boolean2.Type = "Fuse"
boolean2.addObjects([body7])

# Sketch on XY plane
sketch16 = body6.newObject("Sketcher::SketchObject", "Sketch015")
sketch16.AttachmentSupport = (doc.getObject("XY_Plane005"), [""])
sketch16.MapMode = "FlatFace"
sketch16.addGeometry(Part.LineSegment(Vector(-29, -19, 0), Vector(-29, -25, 0)), False)
sketch16.addGeometry(Part.LineSegment(Vector(-29, -25, 0), Vector(-16, -25, 0)), False)
sketch16.addGeometry(Part.LineSegment(Vector(-16, -25, 0), Vector(-16, -13, 0)), False)
sketch16.addGeometry(Part.LineSegment(Vector(-16, -13, 0), Vector(-22, -13, 0)), False)
sketch16.addGeometry(Part.LineSegment(Vector(-22, -13, 0), Vector(-22, -19, 0)), False)
sketch16.addGeometry(Part.LineSegment(Vector(-22, -19, 0), Vector(-29, -19, 0)), False)
sketch16.addConstraint(Sketcher.Constraint("Coincident", 0, 2, 1, 1))
sketch16.addConstraint(Sketcher.Constraint("Coincident", 1, 2, 2, 1))
sketch16.addConstraint(Sketcher.Constraint("Coincident", 2, 2, 3, 1))
sketch16.addConstraint(Sketcher.Constraint("Coincident", 3, 2, 4, 1))
sketch16.addConstraint(Sketcher.Constraint("Coincident", 4, 2, 5, 1))
sketch16.addConstraint(Sketcher.Constraint("Coincident", 5, 2, 0, 1))
sketch16.addConstraint(Sketcher.Constraint("Vertical", 0))
sketch16.addConstraint(Sketcher.Constraint("Horizontal", 1))
sketch16.addConstraint(Sketcher.Constraint("Vertical", 2))
sketch16.addConstraint(Sketcher.Constraint("Horizontal", 3))
sketch16.addConstraint(Sketcher.Constraint("Vertical", 4))
sketch16.addConstraint(Sketcher.Constraint("Horizontal", 5))
sketch16.addConstraint(Sketcher.Constraint("Equal", 3, 5))
sketch16.addConstraint(Sketcher.Constraint("Equal", 5, 0))
sketch16.addConstraint(Sketcher.Constraint("Equal", 1, 2))
sketch16.addConstraint(Sketcher.Constraint("DistanceX", 1, 1, 1, 2, Q("0.5 in")))
sketch16.addConstraint(Sketcher.Constraint("DistanceY", 0, 2, -1, 1, Q("1 in")))
sketch16.addConstraint(Sketcher.Constraint("DistanceX", 0, 2, -1, 1, Q("1.125 in")))
pad16 = body6.newObject("PartDesign::Pad", "Pad015")
pad16.Profile = sketch16
pad16.Length = Q("0.25 in")
body.AllowCompound = True
doc.recompute()

boolean3 = body.newObject("PartDesign::Boolean", "Boolean002")
boolean3.Type = "Fuse"
boolean3.addObjects([body2])

# Sketch on XY plane
sketch17 = body.newObject("Sketcher::SketchObject", "Sketch016")
sketch17.AttachmentSupport = (doc.getObject("XY_Plane"), [""])
sketch17.MapMode = "FlatFace"
sketch17.addGeometry(Part.LineSegment(Vector(-35, 25, 0), Vector(-35, 13, 0)), False)
sketch17.addGeometry(Part.LineSegment(Vector(-35, 13, 0), Vector(-22, 13, 0)), False)
sketch17.addGeometry(Part.LineSegment(Vector(-22, 13, 0), Vector(-22, 25, 0)), False)
sketch17.addGeometry(Part.LineSegment(Vector(-22, 25, 0), Vector(-35, 25, 0)), False)
sketch17.addConstraint(Sketcher.Constraint("Coincident", 0, 2, 1, 1))
sketch17.addConstraint(Sketcher.Constraint("Coincident", 1, 2, 2, 1))
sketch17.addConstraint(Sketcher.Constraint("Coincident", 2, 2, 3, 1))
sketch17.addConstraint(Sketcher.Constraint("Coincident", 3, 2, 0, 1))
sketch17.addConstraint(Sketcher.Constraint("Vertical", 0))
sketch17.addConstraint(Sketcher.Constraint("Horizontal", 1))
sketch17.addConstraint(Sketcher.Constraint("Vertical", 2))
sketch17.addConstraint(Sketcher.Constraint("Horizontal", 3))
sketch17.addConstraint(Sketcher.Constraint("Equal", 3, 0))
sketch17.addConstraint(Sketcher.Constraint("DistanceX", 1, 1, 1, 2, Q("0.5 in")))
sketch17.addConstraint(Sketcher.Constraint("DistanceY", -1, 1, 2, 2, Q("1 in")))
sketch17.addConstraint(Sketcher.Constraint("DistanceX", 0, 2, -1, 1, Q("1.375 in")))
pad17 = body.newObject("PartDesign::Pad", "Pad016")
pad17.Profile = sketch17
pad17.Length = Q("0.25 in")
body10.AllowCompound = True
doc.recompute()

boolean4 = body10.newObject("PartDesign::Boolean", "Boolean003")
boolean4.Type = "Fuse"
boolean4.addObjects([body11])
doc.recompute()

boolean5 = body10.newObject("PartDesign::Boolean", "Boolean004")
boolean5.Type = "Fuse"
boolean5.addObjects([body12])

# Sketch on XY plane
sketch18 = body10.newObject("Sketcher::SketchObject", "Sketch017")
sketch18.AttachmentSupport = (doc.getObject("XY_Plane009"), [""])
sketch18.MapMode = "FlatFace"
sketch18.addGeometry(Part.LineSegment(Vector(16, 6, 0), Vector(10, 6, 0)), False)
sketch18.addGeometry(Part.LineSegment(Vector(10, 6, 0), Vector(10, -6, 0)), False)
sketch18.addGeometry(Part.LineSegment(Vector(10, -6, 0), Vector(16, -6, 0)), False)
sketch18.addGeometry(Part.LineSegment(Vector(16, -6, 0), Vector(16, 6, 0)), False)
sketch18.addGeometry(Part.LineSegment(Vector(35, 6, 0), Vector(22, 6, 0)), False)
sketch18.addGeometry(Part.LineSegment(Vector(22, 6, 0), Vector(22, 0, 0)), False)
sketch18.addGeometry(Part.LineSegment(Vector(22, 0, 0), Vector(29, 0, 0)), False)
sketch18.addGeometry(Part.LineSegment(Vector(29, 0, 0), Vector(29, -6, 0)), False)
sketch18.addGeometry(Part.LineSegment(Vector(29, -6, 0), Vector(35, -6, 0)), False)
sketch18.addGeometry(Part.LineSegment(Vector(35, -6, 0), Vector(35, 6, 0)), False)
sketch18.addConstraint(Sketcher.Constraint("Coincident", 0, 2, 1, 1))
sketch18.addConstraint(Sketcher.Constraint("Coincident", 1, 2, 2, 1))
sketch18.addConstraint(Sketcher.Constraint("Coincident", 2, 2, 3, 1))
sketch18.addConstraint(Sketcher.Constraint("Coincident", 3, 2, 0, 1))
sketch18.addConstraint(Sketcher.Constraint("Coincident", 4, 2, 5, 1))
sketch18.addConstraint(Sketcher.Constraint("Coincident", 5, 2, 6, 1))
sketch18.addConstraint(Sketcher.Constraint("Coincident", 6, 2, 7, 1))
sketch18.addConstraint(Sketcher.Constraint("Coincident", 7, 2, 8, 1))
sketch18.addConstraint(Sketcher.Constraint("Coincident", 8, 2, 9, 1))
sketch18.addConstraint(Sketcher.Constraint("Coincident", 9, 2, 4, 1))
sketch18.addConstraint(Sketcher.Constraint("Horizontal", 0))
sketch18.addConstraint(Sketcher.Constraint("Vertical", 1))
sketch18.addConstraint(Sketcher.Constraint("Horizontal", 2))
sketch18.addConstraint(Sketcher.Constraint("Vertical", 3))
sketch18.addConstraint(Sketcher.Constraint("Horizontal", 4))
sketch18.addConstraint(Sketcher.Constraint("Vertical", 5))
sketch18.addConstraint(Sketcher.Constraint("Horizontal", 6))
sketch18.addConstraint(Sketcher.Constraint("Vertical", 7))
sketch18.addConstraint(Sketcher.Constraint("Horizontal", 8))
sketch18.addConstraint(Sketcher.Constraint("Vertical", 9))
sketch18.addConstraint(Sketcher.Constraint("PointOnObject", 5, 2, -1))
sketch18.addConstraint(Sketcher.Constraint("Horizontal", 3, 2, 4, 2))
sketch18.addConstraint(Sketcher.Constraint("Horizontal", 2, 2, 7, 2))
sketch18.addConstraint(Sketcher.Constraint("Equal", 2, 6))
sketch18.addConstraint(Sketcher.Constraint("Equal", 6, 8))
sketch18.addConstraint(Sketcher.Constraint("Equal", 4, 1))
sketch18.addConstraint(Sketcher.Constraint("Equal", 8, 5))
sketch18.addConstraint(Sketcher.Constraint("DistanceX", 4, 2, 4, 1, Q("0.5 in")))
sketch18.addConstraint(Sketcher.Constraint("DistanceX", 0, 2, 4, 2, Q("0.5 in")))
sketch18.addConstraint(Sketcher.Constraint("DistanceX", -1, 1, 0, 2, Q("0.375 in")))
pad18 = body10.newObject("PartDesign::Pad", "Pad017")
pad18.Profile = sketch18
pad18.Length = Q("0.25 in")
body8.AllowCompound = True
doc.recompute()

boolean6 = body8.newObject("PartDesign::Boolean", "Boolean005")
boolean6.Type = "Fuse"
boolean6.addObjects([body9])

# Sketch on XY plane
sketch19 = body8.newObject("Sketcher::SketchObject", "Sketch018")
sketch19.AttachmentSupport = (doc.getObject("XY_Plane007"), [""])
sketch19.MapMode = "FlatFace"
sketch19.addGeometry(Part.LineSegment(Vector(16, 19, 0), Vector(29, 19, 0)), False)
sketch19.addGeometry(Part.LineSegment(Vector(29, 19, 0), Vector(29, 25, 0)), False)
sketch19.addGeometry(Part.LineSegment(Vector(29, 25, 0), Vector(10, 25, 0)), False)
sketch19.addGeometry(Part.LineSegment(Vector(10, 25, 0), Vector(10, 13, 0)), False)
sketch19.addGeometry(Part.LineSegment(Vector(10, 13, 0), Vector(16, 13, 0)), False)
sketch19.addGeometry(Part.LineSegment(Vector(16, 13, 0), Vector(16, 19, 0)), False)
sketch19.addConstraint(Sketcher.Constraint("Coincident", 0, 2, 1, 1))
sketch19.addConstraint(Sketcher.Constraint("Coincident", 1, 2, 2, 1))
sketch19.addConstraint(Sketcher.Constraint("Coincident", 2, 2, 3, 1))
sketch19.addConstraint(Sketcher.Constraint("Coincident", 3, 2, 4, 1))
sketch19.addConstraint(Sketcher.Constraint("Coincident", 4, 2, 5, 1))
sketch19.addConstraint(Sketcher.Constraint("Coincident", 5, 2, 0, 1))
sketch19.addConstraint(Sketcher.Constraint("Horizontal", 0))
sketch19.addConstraint(Sketcher.Constraint("Vertical", 1))
sketch19.addConstraint(Sketcher.Constraint("Horizontal", 2))
sketch19.addConstraint(Sketcher.Constraint("Vertical", 3))
sketch19.addConstraint(Sketcher.Constraint("Horizontal", 4))
sketch19.addConstraint(Sketcher.Constraint("Vertical", 5))
sketch19.addConstraint(Sketcher.Constraint("Equal", 4, 1))
sketch19.addConstraint(Sketcher.Constraint("Equal", 0, 3))
sketch19.addConstraint(Sketcher.Constraint("Equal", 1, 5))
sketch19.addConstraint(Sketcher.Constraint("DistanceX", 0, 1, 0, 2, Q("0.5 in")))
sketch19.addConstraint(Sketcher.Constraint("DistanceY", -1, 1, 1, 2, Q("1 in")))
sketch19.addConstraint(Sketcher.Constraint("DistanceX", -1, 1, 0, 2, Q("1.125 in")))
pad19 = body8.newObject("PartDesign::Pad", "Pad018")
pad19.Profile = sketch19
pad19.Length = Q("0.25 in")
body3.AllowCompound = True
doc.recompute()

boolean7 = body3.newObject("PartDesign::Boolean", "Boolean006")
boolean7.Type = "Fuse"
boolean7.addObjects([body4])
doc.recompute()

boolean8 = body3.newObject("PartDesign::Boolean", "Boolean007")
boolean8.Type = "Fuse"
boolean8.addObjects([body5])

# Sketch on XY plane
sketch20 = body3.newObject("Sketcher::SketchObject", "Sketch019")
sketch20.AttachmentSupport = (doc.getObject("XY_Plane002"), [""])
sketch20.MapMode = "FlatFace"
sketch20.addGeometry(Part.LineSegment(Vector(-35, 6, 0), Vector(-35, -6, 0)), False)
sketch20.addGeometry(Part.LineSegment(Vector(-35, -6, 0), Vector(-16, -6, 0)), False)
sketch20.addGeometry(Part.LineSegment(Vector(-16, -6, 0), Vector(-16, 6, 0)), False)
sketch20.addGeometry(Part.LineSegment(Vector(-16, 6, 0), Vector(-22, 6, 0)), False)
sketch20.addGeometry(Part.LineSegment(Vector(-22, 6, 0), Vector(-22, 0, 0)), False)
sketch20.addGeometry(Part.LineSegment(Vector(-22, 0, 0), Vector(-29, 0, 0)), False)
sketch20.addGeometry(Part.LineSegment(Vector(-29, 0, 0), Vector(-29, 6, 0)), False)
sketch20.addGeometry(Part.LineSegment(Vector(-29, 6, 0), Vector(-35, 6, 0)), False)
sketch20.addConstraint(Sketcher.Constraint("Coincident", 0, 2, 1, 1))
sketch20.addConstraint(Sketcher.Constraint("Coincident", 1, 2, 2, 1))
sketch20.addConstraint(Sketcher.Constraint("Coincident", 2, 2, 3, 1))
sketch20.addConstraint(Sketcher.Constraint("Coincident", 3, 2, 4, 1))
sketch20.addConstraint(Sketcher.Constraint("Coincident", 4, 2, 5, 1))
sketch20.addConstraint(Sketcher.Constraint("Coincident", 5, 2, 6, 1))
sketch20.addConstraint(Sketcher.Constraint("Coincident", 6, 2, 7, 1))
sketch20.addConstraint(Sketcher.Constraint("Coincident", 7, 2, 0, 1))
sketch20.addConstraint(Sketcher.Constraint("Vertical", 0))
sketch20.addConstraint(Sketcher.Constraint("Horizontal", 1))
sketch20.addConstraint(Sketcher.Constraint("Vertical", 2))
sketch20.addConstraint(Sketcher.Constraint("Horizontal", 3))
sketch20.addConstraint(Sketcher.Constraint("Vertical", 4))
sketch20.addConstraint(Sketcher.Constraint("Horizontal", 5))
sketch20.addConstraint(Sketcher.Constraint("Vertical", 6))
sketch20.addConstraint(Sketcher.Constraint("Horizontal", 7))
sketch20.addConstraint(Sketcher.Constraint("PointOnObject", 4, 2, -1))
sketch20.addConstraint(Sketcher.Constraint("Horizontal", 3, 2, 6, 2))
sketch20.addConstraint(Sketcher.Constraint("Equal", 3, 5))
sketch20.addConstraint(Sketcher.Constraint("Equal", 5, 7))
sketch20.addConstraint(Sketcher.Constraint("Equal", 7, 4))
sketch20.addConstraint(Sketcher.Constraint("DistanceY", 0, 2, 0, 1, Q("0.5 in")))
sketch20.addConstraint(Sketcher.Constraint("DistanceX", 1, 1, 1, 2, Q("0.75 in")))
sketch20.addConstraint(Sketcher.Constraint("DistanceX", 0, 2, -1, 1, Q("1.375 in")))
pad20 = body3.newObject("PartDesign::Pad", "Pad019")
pad20.Profile = sketch20
pad20.Length = Q("0.25 in")

doc.recompute()
